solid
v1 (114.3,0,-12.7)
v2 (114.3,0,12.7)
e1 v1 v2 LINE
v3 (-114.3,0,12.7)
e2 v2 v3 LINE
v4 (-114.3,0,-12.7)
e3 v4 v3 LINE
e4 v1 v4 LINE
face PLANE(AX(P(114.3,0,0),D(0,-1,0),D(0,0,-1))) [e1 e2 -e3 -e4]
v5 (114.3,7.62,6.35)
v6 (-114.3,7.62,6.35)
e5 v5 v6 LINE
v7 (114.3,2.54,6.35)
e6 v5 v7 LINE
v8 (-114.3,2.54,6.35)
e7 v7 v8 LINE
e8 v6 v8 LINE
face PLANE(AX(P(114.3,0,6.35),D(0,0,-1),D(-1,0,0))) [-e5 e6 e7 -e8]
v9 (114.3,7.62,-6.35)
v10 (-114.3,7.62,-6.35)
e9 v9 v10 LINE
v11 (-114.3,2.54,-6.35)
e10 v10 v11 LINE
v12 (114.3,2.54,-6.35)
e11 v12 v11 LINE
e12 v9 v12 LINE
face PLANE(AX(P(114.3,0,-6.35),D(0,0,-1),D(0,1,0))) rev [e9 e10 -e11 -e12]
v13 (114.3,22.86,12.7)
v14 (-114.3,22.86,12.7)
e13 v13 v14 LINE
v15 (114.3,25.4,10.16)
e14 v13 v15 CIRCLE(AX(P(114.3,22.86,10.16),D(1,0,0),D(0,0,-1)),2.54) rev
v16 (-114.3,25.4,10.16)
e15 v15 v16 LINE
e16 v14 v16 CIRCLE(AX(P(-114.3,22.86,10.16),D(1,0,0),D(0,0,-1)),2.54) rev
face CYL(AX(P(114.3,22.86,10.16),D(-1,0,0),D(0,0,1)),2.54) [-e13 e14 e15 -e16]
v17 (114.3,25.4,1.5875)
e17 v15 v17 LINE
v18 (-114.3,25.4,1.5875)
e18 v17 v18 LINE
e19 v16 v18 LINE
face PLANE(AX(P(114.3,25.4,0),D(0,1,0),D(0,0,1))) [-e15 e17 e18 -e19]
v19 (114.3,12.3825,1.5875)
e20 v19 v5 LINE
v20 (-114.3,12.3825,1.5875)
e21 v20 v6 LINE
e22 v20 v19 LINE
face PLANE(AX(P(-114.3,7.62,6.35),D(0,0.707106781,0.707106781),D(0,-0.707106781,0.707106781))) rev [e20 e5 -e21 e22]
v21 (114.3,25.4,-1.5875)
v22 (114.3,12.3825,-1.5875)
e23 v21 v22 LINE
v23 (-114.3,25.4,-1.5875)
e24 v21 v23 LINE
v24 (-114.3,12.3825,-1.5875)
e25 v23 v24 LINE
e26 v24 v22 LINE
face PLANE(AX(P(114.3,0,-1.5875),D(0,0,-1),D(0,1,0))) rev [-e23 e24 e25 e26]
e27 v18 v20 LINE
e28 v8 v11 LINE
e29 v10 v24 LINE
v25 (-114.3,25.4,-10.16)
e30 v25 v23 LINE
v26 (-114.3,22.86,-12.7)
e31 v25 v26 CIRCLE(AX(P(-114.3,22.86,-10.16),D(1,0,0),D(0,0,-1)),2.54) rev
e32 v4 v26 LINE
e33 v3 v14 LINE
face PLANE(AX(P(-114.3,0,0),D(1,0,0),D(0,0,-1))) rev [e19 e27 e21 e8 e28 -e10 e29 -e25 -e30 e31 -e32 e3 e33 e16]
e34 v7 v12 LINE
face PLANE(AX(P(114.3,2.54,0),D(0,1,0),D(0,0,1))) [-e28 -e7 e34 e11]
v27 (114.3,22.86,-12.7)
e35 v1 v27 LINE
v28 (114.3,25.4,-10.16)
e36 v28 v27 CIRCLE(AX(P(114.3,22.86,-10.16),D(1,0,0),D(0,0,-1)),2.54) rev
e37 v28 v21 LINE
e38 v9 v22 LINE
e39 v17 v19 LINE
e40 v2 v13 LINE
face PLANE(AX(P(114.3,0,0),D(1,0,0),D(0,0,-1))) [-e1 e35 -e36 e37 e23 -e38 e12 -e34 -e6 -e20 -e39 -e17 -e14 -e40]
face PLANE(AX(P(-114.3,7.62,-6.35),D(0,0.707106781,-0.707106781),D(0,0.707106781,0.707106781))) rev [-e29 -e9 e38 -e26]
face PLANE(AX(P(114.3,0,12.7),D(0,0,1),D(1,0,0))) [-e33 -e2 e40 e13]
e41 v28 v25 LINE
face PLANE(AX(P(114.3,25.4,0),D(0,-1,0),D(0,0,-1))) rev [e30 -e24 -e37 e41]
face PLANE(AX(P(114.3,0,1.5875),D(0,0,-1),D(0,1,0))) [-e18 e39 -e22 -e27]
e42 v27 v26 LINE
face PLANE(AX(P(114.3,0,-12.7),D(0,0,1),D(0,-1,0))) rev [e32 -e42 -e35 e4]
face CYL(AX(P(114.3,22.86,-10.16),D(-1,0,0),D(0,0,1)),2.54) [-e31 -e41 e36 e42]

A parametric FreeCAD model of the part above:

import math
import FreeCAD as App
import Part
import Sketcher
from FreeCAD import Vector
Q = App.Units.Quantity


def add_polygon(sketch, points):
    """Adds a closed chain of lines whose ends are joined by coincident constraints."""
    first, n = sketch.GeometryCount, len(points)
    for a, b in zip(points, points[1:] + points[:1]):
        sketch.addGeometry(Part.LineSegment(App.Vector(*a, 0), App.Vector(*b, 0)), False)
    for i in range(n):
        sketch.addConstraint(Sketcher.Constraint("Coincident", first + i, 2, first + (i + 1) % n, 1))

doc = App.newDocument("Part")
body = doc.addObject("PartDesign::Body", "Body")

# Sketch on YZ plane
sketch1 = doc.addObject("Sketcher::SketchObject", "Sketch")
body.addObject(sketch1)
sketch1.AttachmentSupport = (doc.YZ_Plane, [""])
sketch1.MapMode = "FlatFace"
sketch1.addGeometry([
    Part.LineSegment(Vector(0, 12.7, 0), Vector(0, -12.7, 0)),  # 0
    Part.LineSegment(Vector(0, -12.7, 0), Vector(22.9, -12.7, 0)),  # 1
    Part.ArcOfCircle(Part.Circle(Vector(22.9, -10.2, 0), Vector(0, 0, 1), 2.5), math.radians(-90), math.radians(0)),  # 2
    Part.LineSegment(Vector(25.4, -10.2, 0), Vector(25.4, -1.6, 0)),  # 3
    Part.LineSegment(Vector(25.4, -1.6, 0), Vector(7.6, -1.6, 0)),  # 4
    Part.LineSegment(Vector(7.6, -1.6, 0), Vector(7.6, -6.3, 0)),  # 5
    Part.LineSegment(Vector(7.6, -6.3, 0), Vector(2.5, -6.3, 0)),  # 6
    Part.LineSegment(Vector(2.5, -6.3, 0), Vector(2.5, 6.3, 0)),  # 7
    Part.LineSegment(Vector(2.5, 6.3, 0), Vector(7.6, 6.3, 0)),  # 8
    Part.LineSegment(Vector(7.6, 6.3, 0), Vector(7.6, 1.6, 0)),  # 9
    Part.LineSegment(Vector(7.6, 1.6, 0), Vector(25.4, 1.6, 0)),  # 10
    Part.LineSegment(Vector(25.4, 1.6, 0), Vector(25.4, 10.2, 0)),  # 11
    Part.ArcOfCircle(Part.Circle(Vector(22.9, 10.2, 0), Vector(0, 0, 1), 2.5), math.radians(0), math.radians(90)),  # 12
    Part.LineSegment(Vector(22.9, 12.7, 0), Vector(0, 12.7, 0)),  # 13
], False)
sketch1.addConstraint([
    Sketcher.Constraint("Coincident", 0, 2, 1, 1),
    Sketcher.Constraint("Tangent", 1, 2, 2, 1),
    Sketcher.Constraint("Tangent", 2, 2, 3, 1),
    Sketcher.Constraint("Coincident", 3, 2, 4, 1),
    Sketcher.Constraint("Coincident", 4, 2, 5, 1),
    Sketcher.Constraint("Coincident", 5, 2, 6, 1),
    Sketcher.Constraint("Coincident", 6, 2, 7, 1),
    Sketcher.Constraint("Coincident", 7, 2, 8, 1),
    Sketcher.Constraint("Coincident", 8, 2, 9, 1),
    Sketcher.Constraint("Coincident", 9, 2, 10, 1),
    Sketcher.Constraint("Coincident", 10, 2, 11, 1),
    Sketcher.Constraint("Tangent", 11, 2, 12, 1),
    Sketcher.Constraint("Tangent", 12, 2, 13, 1),
    Sketcher.Constraint("Coincident", 13, 2, 0, 1),
    Sketcher.Constraint("Vertical", 0),
    Sketcher.Constraint("Horizontal", 1),
    Sketcher.Constraint("Vertical", 3),
    Sketcher.Constraint("Horizontal", 4),
    Sketcher.Constraint("Vertical", 5),
    Sketcher.Constraint("Horizontal", 6),
    Sketcher.Constraint("Vertical", 7),
    Sketcher.Constraint("Horizontal", 8),
    Sketcher.Constraint("Vertical", 9),
    Sketcher.Constraint("Horizontal", 10),
    Sketcher.Constraint("Vertical", 11),
    Sketcher.Constraint("Horizontal", 13),
    Sketcher.Constraint("Equal", 2, 12),
    Sketcher.Constraint("Symmetric", 0, 2, 13, 2, -1, 1),
    Sketcher.Constraint("Symmetric", 5, 2, 8, 2, -1),
    Sketcher.Constraint("Symmetric", 3, 2, 10, 2, -1),
    Sketcher.Constraint("Radius", 2, Q("0.1 in")),
    Sketcher.Constraint("DistanceY", 0, 2, 0, 1, Q("1 in")),
    Sketcher.Constraint("DistanceX", 1, 1, 1, 2, Q("0.9 in")),
    Sketcher.Constraint("DistanceX", 4, 2, 4, 1, Q("0.7 in")),
    Sketcher.Constraint("DistanceX", 6, 2, 6, 1, Q("0.2 in")),
    Sketcher.Constraint("DistanceY", 7, 1, 7, 2, Q("0.5 in")),
    Sketcher.Constraint("DistanceY", 5, 2, 5, 1, Q("0.1875 in")),
])
pad1 = doc.addObject("PartDesign::Pad", "Pad")
body.addObject(pad1)
pad1.Profile = sketch1
pad1.Length = Q("9 in")
pad1.Midplane = True

# Sketch on YZ plane
sketch2 = doc.addObject("Sketcher::SketchObject", "Sketch001")
body.addObject(sketch2)
sketch2.AttachmentSupport = (doc.YZ_Plane, [""])
sketch2.MapMode = "FlatFace"
add_polygon(sketch2, [(12.4, 1.6), (7.6, 6.3), (7.6, 1.6)])  # lines 0-2
add_polygon(sketch2, [(7.6, -1.6), (7.6, -6.3), (12.4, -1.6)])  # lines 3-5
sketch2.addConstraint([
    Sketcher.Constraint("Vertical", 1),
    Sketcher.Constraint("Horizontal", 2),
    Sketcher.Constraint("Vertical", 3),
    Sketcher.Constraint("Horizontal", 5),
    Sketcher.Constraint("Symmetric", 0, 2, 3, 2, -1),
    Sketcher.Constraint("Symmetric", 2, 2, 4, 2, -1),
    Sketcher.Constraint("Perpendicular", 0, 4),
    Sketcher.Constraint("DistanceX", -1, 1, 0, 2, Q("0.3 in")),
    Sketcher.Constraint("DistanceY", 3, 2, 0, 2, Q("0.5 in")),
    Sketcher.Constraint("DistanceX", 2, 1, 2, 2, Q("0.1875 in")),
])
pocket1 = doc.addObject("PartDesign::Pocket", "Pocket")
body.addObject(pocket1)
pocket1.Profile = sketch2
pocket1.Length = Q("9 in")
pocket1.Midplane = True

doc.recompute()
